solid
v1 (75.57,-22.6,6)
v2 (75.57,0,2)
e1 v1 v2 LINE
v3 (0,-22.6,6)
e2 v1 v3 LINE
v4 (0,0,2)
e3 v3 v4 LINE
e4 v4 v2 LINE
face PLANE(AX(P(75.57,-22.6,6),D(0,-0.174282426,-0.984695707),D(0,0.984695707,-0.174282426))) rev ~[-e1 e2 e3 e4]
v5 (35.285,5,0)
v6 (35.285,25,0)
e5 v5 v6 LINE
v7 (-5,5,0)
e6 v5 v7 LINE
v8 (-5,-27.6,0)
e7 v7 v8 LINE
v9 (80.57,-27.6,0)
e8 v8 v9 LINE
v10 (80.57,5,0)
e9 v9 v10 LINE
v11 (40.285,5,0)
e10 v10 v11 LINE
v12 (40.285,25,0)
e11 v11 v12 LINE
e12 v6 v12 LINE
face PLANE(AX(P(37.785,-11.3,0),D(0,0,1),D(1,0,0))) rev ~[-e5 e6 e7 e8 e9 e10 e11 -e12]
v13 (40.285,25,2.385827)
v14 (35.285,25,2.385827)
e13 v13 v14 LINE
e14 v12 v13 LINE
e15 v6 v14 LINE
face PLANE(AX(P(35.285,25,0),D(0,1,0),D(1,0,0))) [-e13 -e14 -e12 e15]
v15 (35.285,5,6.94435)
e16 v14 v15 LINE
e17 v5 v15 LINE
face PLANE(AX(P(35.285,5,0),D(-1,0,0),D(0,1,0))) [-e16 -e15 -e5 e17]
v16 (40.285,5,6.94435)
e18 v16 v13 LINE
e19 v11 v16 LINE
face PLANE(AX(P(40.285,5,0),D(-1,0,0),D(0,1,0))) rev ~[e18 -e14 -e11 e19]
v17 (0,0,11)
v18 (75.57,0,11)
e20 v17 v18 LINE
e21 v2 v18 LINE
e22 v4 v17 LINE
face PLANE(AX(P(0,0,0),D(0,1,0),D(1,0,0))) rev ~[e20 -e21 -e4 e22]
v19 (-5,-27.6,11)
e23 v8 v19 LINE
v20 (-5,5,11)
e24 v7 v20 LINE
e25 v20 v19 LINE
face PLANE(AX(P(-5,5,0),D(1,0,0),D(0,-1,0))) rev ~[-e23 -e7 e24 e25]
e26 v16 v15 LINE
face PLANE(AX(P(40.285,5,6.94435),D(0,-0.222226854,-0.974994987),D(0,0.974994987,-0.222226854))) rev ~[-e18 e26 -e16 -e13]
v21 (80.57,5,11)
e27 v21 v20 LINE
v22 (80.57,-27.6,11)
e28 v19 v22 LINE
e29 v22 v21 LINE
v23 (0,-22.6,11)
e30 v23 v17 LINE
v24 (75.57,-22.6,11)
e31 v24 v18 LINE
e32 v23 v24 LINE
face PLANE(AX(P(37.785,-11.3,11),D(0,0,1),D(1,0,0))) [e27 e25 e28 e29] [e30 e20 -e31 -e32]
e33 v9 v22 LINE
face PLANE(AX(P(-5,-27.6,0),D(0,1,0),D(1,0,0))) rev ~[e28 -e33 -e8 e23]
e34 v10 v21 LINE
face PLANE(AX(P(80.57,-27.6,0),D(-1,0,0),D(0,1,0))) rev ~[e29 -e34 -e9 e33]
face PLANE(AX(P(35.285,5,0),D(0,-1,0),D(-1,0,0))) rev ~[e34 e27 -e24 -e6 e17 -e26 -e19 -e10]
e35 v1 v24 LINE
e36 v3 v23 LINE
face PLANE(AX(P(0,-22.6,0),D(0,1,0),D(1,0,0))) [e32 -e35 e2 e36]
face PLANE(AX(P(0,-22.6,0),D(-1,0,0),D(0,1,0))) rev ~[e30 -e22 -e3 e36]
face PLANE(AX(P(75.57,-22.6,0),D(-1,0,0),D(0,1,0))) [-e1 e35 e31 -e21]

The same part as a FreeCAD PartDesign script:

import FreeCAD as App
import Part
import Sketcher

V = App.Vector
Q = App.Units.Quantity


def add_polygon(sketch, points):
    """Adds a closed chain of lines whose ends are joined by coincident constraints."""
    first, n = sketch.GeometryCount, len(points)
    for a, b in zip(points, points[1:] + points[:1]):
        sketch.addGeometry(Part.LineSegment(App.Vector(*a, 0), App.Vector(*b, 0)), False)
    for i in range(n):
        sketch.addConstraint(Sketcher.Constraint("Coincident", first + i, 2, first + (i + 1) % n, 1))

doc = App.newDocument("Part")
params = doc.addObject("Spreadsheet::Sheet", "Params")
for row, (alias, value) in enumerate([
    ("sketch1_height", "22.6 mm"),
    ("sketch1_width", "75.57 mm"),
    ("pad1_length", "2 mm"),
    ("sketch2_width", "5 mm"),
    ("sketch2_height", "20 mm"),
    ("sketch2_height2", "32.6 mm"),
    ("sketch2_height3", "22.6 mm"),
    ("sketch2_width2", "85.57 mm"),
    ("pad2_length", "11 mm"),
    ("sketch3_height", "4 mm"),
    ("sketch3_width", "22.6 mm"),
    ("sketch4_width", "20 mm"),
    ("pocket1_length", "25 mm"),
], start=1):
    params.set(f"A{row}", alias)
    params.set(f"B{row}", "=" + value)
    params.setAlias(f"B{row}", alias)

body = doc.addObject("PartDesign::Body", "Body")

# Sketch on XY plane
sketch1 = body.newObject("Sketcher::SketchObject", "Sketch")
sketch1.AttachmentSupport = (doc.getObject("XY_Plane"), [""])
sketch1.MapMode = "FlatFace"
add_polygon(sketch1, [(0, 0), (0, -22.6), (75.57, -22.6), (75.57, 0)])  # lines 0-3
sketch1.addConstraint([
    Sketcher.Constraint("Vertical", 0),
    Sketcher.Constraint("Horizontal", 1),
    Sketcher.Constraint("Vertical", 2),
    Sketcher.Constraint("Horizontal", 3),
    Sketcher.Constraint("Coincident", 3, 2, -1, 1),
    Sketcher.Constraint("DistanceY", 0, 2, 0, 1, Q("22.6 mm")),
    Sketcher.Constraint("DistanceX", 1, 1, 1, 2, Q("75.57 mm")),
])
sketch1.setExpression("Constraints[9]", "Params.sketch1_height")
sketch1.setExpression("Constraints[10]", "Params.sketch1_width")
pad1 = body.newObject("PartDesign::Pad", "Pad")
pad1.Profile = sketch1
pad1.setExpression("Length", "Params.pad1_length")

# Sketch on XY plane
sketch2 = body.newObject("Sketcher::SketchObject", "Sketch001")
sketch2.AttachmentSupport = (doc.getObject("XY_Plane"), [""])
sketch2.MapMode = "FlatFace"
add_polygon(sketch2, [(-5, 5), (-5, -27.6), (80.57, -27.6), (80.57, 5), (40.285, 5), (40.285, 25), (35.285, 25), (35.285, 5)])  # lines 0-7
add_polygon(sketch2, [(75.57, -22.6), (0, -22.6), (0, 0), (75.57, 0)])  # lines 8-11
sketch2.addConstraint([
    Sketcher.Constraint("Vertical", 0),
    Sketcher.Constraint("Horizontal", 1),
    Sketcher.Constraint("Vertical", 2),
    Sketcher.Constraint("Horizontal", 3),
    Sketcher.Constraint("Vertical", 4),
    Sketcher.Constraint("Horizontal", 5),
    Sketcher.Constraint("Vertical", 6),
    Sketcher.Constraint("Horizontal", 7),
    Sketcher.Constraint("Horizontal", 8),
    Sketcher.Constraint("Vertical", 9),
    Sketcher.Constraint("Horizontal", 10),
    Sketcher.Constraint("Vertical", 11),
    Sketcher.Constraint("Coincident", 9, 2, -1, 1),
    Sketcher.Constraint("Horizontal", 3, 2, 6, 2),
    Sketcher.Constraint("Equal", 3, 7),
    Sketcher.Constraint("DistanceX", 5, 2, 5, 1, Q("5 mm")),
    Sketcher.Constraint("DistanceY", 4, 1, 4, 2, Q("20 mm")),
    Sketcher.Constraint("DistanceY", 0, 2, 0, 1, Q("32.6 mm")),
    Sketcher.Constraint("DistanceY", 9, 1, 9, 2, Q("22.6 mm")),
    Sketcher.Constraint("DistanceX", 0, 2, -1, 1, Q("5 mm")),
    Sketcher.Constraint("DistanceY", -1, 1, 2, 2, Q("5 mm")),
    Sketcher.Constraint("DistanceX", 10, 2, 2, 2, Q("5 mm")),
    Sketcher.Constraint("DistanceX", 1, 1, 1, 2, Q("85.57 mm")),
])
sketch2.setExpression("Constraints[27]", "Params.sketch2_width")
sketch2.setExpression("Constraints[28]", "Params.sketch2_height")
sketch2.setExpression("Constraints[29]", "Params.sketch2_height2")
sketch2.setExpression("Constraints[30]", "Params.sketch2_height3")
sketch2.setExpression("Constraints[34]", "Params.sketch2_width2")
pad2 = body.newObject("PartDesign::Pad", "Pad001")
pad2.Profile = sketch2
pad2.setExpression("Length", "Params.pad2_length")

# Sketch on YZ plane
sketch3 = body.newObject("Sketcher::SketchObject", "Sketch002")
sketch3.AttachmentSupport = (doc.getObject("YZ_Plane"), [""])
sketch3.MapMode = "FlatFace"
sketch3.AttachmentOffset = App.Placement(V(0, 0, 75.57), App.Rotation())
add_polygon(sketch3, [(-22.6, 6), (0, 2), (-22.6, 2)])  # lines 0-2
sketch3.addConstraint([
    Sketcher.Constraint("Horizontal", 1),
    Sketcher.Constraint("Vertical", 2),
    Sketcher.Constraint("PointOnObject", 0, 2, -2),
    Sketcher.Constraint("DistanceY", 2, 1, 2, 2, Q("4 mm")),
    Sketcher.Constraint("DistanceX", 1, 2, 1, 1, Q("22.6 mm")),
    Sketcher.Constraint("DistanceY", -1, 1, 0, 2, Q("2 mm")),
])
sketch3.setExpression("Constraints[6]", "Params.sketch3_height")
sketch3.setExpression("Constraints[7]", "Params.sketch3_width")
pad3 = body.newObject("PartDesign::Pad", "Pad002")
pad3.Profile = sketch3
pad3.Type = "UpToLast"
pad3.Reversed = True

# Sketch on YZ plane
sketch4 = body.newObject("Sketcher::SketchObject", "Sketch003")
sketch4.AttachmentSupport = (doc.getObject("YZ_Plane"), [""])
sketch4.MapMode = "FlatFace"
sketch4.AttachmentOffset = App.Placement(V(0, 0, 40.285), App.Rotation())
add_polygon(sketch4, [(5, 6.94435), (25, 2.385827), (25, 11), (5, 11)])  # lines 0-3
sketch4.addConstraint([
    Sketcher.Constraint("Vertical", 1),
    Sketcher.Constraint("Horizontal", 2),
    Sketcher.Constraint("Vertical", 3),
    Sketcher.Constraint("DistanceX", 2, 2, 2, 1, Q("20 mm")),
    Sketcher.Constraint("DistanceX", -1, 1, 0, 2, Q("25 mm")),
    Sketcher.Constraint("DistanceY", -1, 1, 1, 2, Q("11 mm")),
    Sketcher.Constraint("DistanceY", 3, 2, 3, 1, Q("4.05565 mm")),
    Sketcher.Constraint("DistanceY", 1, 1, 1, 2, Q("8.614173 mm")),
])
sketch4.setExpression("Constraints[7]", "Params.sketch4_width")
pocket1 = body.newObject("PartDesign::Pocket", "Pocket")
pocket1.Profile = sketch4
pocket1.setExpression("Length", "Params.pocket1_length")

doc.recompute()
